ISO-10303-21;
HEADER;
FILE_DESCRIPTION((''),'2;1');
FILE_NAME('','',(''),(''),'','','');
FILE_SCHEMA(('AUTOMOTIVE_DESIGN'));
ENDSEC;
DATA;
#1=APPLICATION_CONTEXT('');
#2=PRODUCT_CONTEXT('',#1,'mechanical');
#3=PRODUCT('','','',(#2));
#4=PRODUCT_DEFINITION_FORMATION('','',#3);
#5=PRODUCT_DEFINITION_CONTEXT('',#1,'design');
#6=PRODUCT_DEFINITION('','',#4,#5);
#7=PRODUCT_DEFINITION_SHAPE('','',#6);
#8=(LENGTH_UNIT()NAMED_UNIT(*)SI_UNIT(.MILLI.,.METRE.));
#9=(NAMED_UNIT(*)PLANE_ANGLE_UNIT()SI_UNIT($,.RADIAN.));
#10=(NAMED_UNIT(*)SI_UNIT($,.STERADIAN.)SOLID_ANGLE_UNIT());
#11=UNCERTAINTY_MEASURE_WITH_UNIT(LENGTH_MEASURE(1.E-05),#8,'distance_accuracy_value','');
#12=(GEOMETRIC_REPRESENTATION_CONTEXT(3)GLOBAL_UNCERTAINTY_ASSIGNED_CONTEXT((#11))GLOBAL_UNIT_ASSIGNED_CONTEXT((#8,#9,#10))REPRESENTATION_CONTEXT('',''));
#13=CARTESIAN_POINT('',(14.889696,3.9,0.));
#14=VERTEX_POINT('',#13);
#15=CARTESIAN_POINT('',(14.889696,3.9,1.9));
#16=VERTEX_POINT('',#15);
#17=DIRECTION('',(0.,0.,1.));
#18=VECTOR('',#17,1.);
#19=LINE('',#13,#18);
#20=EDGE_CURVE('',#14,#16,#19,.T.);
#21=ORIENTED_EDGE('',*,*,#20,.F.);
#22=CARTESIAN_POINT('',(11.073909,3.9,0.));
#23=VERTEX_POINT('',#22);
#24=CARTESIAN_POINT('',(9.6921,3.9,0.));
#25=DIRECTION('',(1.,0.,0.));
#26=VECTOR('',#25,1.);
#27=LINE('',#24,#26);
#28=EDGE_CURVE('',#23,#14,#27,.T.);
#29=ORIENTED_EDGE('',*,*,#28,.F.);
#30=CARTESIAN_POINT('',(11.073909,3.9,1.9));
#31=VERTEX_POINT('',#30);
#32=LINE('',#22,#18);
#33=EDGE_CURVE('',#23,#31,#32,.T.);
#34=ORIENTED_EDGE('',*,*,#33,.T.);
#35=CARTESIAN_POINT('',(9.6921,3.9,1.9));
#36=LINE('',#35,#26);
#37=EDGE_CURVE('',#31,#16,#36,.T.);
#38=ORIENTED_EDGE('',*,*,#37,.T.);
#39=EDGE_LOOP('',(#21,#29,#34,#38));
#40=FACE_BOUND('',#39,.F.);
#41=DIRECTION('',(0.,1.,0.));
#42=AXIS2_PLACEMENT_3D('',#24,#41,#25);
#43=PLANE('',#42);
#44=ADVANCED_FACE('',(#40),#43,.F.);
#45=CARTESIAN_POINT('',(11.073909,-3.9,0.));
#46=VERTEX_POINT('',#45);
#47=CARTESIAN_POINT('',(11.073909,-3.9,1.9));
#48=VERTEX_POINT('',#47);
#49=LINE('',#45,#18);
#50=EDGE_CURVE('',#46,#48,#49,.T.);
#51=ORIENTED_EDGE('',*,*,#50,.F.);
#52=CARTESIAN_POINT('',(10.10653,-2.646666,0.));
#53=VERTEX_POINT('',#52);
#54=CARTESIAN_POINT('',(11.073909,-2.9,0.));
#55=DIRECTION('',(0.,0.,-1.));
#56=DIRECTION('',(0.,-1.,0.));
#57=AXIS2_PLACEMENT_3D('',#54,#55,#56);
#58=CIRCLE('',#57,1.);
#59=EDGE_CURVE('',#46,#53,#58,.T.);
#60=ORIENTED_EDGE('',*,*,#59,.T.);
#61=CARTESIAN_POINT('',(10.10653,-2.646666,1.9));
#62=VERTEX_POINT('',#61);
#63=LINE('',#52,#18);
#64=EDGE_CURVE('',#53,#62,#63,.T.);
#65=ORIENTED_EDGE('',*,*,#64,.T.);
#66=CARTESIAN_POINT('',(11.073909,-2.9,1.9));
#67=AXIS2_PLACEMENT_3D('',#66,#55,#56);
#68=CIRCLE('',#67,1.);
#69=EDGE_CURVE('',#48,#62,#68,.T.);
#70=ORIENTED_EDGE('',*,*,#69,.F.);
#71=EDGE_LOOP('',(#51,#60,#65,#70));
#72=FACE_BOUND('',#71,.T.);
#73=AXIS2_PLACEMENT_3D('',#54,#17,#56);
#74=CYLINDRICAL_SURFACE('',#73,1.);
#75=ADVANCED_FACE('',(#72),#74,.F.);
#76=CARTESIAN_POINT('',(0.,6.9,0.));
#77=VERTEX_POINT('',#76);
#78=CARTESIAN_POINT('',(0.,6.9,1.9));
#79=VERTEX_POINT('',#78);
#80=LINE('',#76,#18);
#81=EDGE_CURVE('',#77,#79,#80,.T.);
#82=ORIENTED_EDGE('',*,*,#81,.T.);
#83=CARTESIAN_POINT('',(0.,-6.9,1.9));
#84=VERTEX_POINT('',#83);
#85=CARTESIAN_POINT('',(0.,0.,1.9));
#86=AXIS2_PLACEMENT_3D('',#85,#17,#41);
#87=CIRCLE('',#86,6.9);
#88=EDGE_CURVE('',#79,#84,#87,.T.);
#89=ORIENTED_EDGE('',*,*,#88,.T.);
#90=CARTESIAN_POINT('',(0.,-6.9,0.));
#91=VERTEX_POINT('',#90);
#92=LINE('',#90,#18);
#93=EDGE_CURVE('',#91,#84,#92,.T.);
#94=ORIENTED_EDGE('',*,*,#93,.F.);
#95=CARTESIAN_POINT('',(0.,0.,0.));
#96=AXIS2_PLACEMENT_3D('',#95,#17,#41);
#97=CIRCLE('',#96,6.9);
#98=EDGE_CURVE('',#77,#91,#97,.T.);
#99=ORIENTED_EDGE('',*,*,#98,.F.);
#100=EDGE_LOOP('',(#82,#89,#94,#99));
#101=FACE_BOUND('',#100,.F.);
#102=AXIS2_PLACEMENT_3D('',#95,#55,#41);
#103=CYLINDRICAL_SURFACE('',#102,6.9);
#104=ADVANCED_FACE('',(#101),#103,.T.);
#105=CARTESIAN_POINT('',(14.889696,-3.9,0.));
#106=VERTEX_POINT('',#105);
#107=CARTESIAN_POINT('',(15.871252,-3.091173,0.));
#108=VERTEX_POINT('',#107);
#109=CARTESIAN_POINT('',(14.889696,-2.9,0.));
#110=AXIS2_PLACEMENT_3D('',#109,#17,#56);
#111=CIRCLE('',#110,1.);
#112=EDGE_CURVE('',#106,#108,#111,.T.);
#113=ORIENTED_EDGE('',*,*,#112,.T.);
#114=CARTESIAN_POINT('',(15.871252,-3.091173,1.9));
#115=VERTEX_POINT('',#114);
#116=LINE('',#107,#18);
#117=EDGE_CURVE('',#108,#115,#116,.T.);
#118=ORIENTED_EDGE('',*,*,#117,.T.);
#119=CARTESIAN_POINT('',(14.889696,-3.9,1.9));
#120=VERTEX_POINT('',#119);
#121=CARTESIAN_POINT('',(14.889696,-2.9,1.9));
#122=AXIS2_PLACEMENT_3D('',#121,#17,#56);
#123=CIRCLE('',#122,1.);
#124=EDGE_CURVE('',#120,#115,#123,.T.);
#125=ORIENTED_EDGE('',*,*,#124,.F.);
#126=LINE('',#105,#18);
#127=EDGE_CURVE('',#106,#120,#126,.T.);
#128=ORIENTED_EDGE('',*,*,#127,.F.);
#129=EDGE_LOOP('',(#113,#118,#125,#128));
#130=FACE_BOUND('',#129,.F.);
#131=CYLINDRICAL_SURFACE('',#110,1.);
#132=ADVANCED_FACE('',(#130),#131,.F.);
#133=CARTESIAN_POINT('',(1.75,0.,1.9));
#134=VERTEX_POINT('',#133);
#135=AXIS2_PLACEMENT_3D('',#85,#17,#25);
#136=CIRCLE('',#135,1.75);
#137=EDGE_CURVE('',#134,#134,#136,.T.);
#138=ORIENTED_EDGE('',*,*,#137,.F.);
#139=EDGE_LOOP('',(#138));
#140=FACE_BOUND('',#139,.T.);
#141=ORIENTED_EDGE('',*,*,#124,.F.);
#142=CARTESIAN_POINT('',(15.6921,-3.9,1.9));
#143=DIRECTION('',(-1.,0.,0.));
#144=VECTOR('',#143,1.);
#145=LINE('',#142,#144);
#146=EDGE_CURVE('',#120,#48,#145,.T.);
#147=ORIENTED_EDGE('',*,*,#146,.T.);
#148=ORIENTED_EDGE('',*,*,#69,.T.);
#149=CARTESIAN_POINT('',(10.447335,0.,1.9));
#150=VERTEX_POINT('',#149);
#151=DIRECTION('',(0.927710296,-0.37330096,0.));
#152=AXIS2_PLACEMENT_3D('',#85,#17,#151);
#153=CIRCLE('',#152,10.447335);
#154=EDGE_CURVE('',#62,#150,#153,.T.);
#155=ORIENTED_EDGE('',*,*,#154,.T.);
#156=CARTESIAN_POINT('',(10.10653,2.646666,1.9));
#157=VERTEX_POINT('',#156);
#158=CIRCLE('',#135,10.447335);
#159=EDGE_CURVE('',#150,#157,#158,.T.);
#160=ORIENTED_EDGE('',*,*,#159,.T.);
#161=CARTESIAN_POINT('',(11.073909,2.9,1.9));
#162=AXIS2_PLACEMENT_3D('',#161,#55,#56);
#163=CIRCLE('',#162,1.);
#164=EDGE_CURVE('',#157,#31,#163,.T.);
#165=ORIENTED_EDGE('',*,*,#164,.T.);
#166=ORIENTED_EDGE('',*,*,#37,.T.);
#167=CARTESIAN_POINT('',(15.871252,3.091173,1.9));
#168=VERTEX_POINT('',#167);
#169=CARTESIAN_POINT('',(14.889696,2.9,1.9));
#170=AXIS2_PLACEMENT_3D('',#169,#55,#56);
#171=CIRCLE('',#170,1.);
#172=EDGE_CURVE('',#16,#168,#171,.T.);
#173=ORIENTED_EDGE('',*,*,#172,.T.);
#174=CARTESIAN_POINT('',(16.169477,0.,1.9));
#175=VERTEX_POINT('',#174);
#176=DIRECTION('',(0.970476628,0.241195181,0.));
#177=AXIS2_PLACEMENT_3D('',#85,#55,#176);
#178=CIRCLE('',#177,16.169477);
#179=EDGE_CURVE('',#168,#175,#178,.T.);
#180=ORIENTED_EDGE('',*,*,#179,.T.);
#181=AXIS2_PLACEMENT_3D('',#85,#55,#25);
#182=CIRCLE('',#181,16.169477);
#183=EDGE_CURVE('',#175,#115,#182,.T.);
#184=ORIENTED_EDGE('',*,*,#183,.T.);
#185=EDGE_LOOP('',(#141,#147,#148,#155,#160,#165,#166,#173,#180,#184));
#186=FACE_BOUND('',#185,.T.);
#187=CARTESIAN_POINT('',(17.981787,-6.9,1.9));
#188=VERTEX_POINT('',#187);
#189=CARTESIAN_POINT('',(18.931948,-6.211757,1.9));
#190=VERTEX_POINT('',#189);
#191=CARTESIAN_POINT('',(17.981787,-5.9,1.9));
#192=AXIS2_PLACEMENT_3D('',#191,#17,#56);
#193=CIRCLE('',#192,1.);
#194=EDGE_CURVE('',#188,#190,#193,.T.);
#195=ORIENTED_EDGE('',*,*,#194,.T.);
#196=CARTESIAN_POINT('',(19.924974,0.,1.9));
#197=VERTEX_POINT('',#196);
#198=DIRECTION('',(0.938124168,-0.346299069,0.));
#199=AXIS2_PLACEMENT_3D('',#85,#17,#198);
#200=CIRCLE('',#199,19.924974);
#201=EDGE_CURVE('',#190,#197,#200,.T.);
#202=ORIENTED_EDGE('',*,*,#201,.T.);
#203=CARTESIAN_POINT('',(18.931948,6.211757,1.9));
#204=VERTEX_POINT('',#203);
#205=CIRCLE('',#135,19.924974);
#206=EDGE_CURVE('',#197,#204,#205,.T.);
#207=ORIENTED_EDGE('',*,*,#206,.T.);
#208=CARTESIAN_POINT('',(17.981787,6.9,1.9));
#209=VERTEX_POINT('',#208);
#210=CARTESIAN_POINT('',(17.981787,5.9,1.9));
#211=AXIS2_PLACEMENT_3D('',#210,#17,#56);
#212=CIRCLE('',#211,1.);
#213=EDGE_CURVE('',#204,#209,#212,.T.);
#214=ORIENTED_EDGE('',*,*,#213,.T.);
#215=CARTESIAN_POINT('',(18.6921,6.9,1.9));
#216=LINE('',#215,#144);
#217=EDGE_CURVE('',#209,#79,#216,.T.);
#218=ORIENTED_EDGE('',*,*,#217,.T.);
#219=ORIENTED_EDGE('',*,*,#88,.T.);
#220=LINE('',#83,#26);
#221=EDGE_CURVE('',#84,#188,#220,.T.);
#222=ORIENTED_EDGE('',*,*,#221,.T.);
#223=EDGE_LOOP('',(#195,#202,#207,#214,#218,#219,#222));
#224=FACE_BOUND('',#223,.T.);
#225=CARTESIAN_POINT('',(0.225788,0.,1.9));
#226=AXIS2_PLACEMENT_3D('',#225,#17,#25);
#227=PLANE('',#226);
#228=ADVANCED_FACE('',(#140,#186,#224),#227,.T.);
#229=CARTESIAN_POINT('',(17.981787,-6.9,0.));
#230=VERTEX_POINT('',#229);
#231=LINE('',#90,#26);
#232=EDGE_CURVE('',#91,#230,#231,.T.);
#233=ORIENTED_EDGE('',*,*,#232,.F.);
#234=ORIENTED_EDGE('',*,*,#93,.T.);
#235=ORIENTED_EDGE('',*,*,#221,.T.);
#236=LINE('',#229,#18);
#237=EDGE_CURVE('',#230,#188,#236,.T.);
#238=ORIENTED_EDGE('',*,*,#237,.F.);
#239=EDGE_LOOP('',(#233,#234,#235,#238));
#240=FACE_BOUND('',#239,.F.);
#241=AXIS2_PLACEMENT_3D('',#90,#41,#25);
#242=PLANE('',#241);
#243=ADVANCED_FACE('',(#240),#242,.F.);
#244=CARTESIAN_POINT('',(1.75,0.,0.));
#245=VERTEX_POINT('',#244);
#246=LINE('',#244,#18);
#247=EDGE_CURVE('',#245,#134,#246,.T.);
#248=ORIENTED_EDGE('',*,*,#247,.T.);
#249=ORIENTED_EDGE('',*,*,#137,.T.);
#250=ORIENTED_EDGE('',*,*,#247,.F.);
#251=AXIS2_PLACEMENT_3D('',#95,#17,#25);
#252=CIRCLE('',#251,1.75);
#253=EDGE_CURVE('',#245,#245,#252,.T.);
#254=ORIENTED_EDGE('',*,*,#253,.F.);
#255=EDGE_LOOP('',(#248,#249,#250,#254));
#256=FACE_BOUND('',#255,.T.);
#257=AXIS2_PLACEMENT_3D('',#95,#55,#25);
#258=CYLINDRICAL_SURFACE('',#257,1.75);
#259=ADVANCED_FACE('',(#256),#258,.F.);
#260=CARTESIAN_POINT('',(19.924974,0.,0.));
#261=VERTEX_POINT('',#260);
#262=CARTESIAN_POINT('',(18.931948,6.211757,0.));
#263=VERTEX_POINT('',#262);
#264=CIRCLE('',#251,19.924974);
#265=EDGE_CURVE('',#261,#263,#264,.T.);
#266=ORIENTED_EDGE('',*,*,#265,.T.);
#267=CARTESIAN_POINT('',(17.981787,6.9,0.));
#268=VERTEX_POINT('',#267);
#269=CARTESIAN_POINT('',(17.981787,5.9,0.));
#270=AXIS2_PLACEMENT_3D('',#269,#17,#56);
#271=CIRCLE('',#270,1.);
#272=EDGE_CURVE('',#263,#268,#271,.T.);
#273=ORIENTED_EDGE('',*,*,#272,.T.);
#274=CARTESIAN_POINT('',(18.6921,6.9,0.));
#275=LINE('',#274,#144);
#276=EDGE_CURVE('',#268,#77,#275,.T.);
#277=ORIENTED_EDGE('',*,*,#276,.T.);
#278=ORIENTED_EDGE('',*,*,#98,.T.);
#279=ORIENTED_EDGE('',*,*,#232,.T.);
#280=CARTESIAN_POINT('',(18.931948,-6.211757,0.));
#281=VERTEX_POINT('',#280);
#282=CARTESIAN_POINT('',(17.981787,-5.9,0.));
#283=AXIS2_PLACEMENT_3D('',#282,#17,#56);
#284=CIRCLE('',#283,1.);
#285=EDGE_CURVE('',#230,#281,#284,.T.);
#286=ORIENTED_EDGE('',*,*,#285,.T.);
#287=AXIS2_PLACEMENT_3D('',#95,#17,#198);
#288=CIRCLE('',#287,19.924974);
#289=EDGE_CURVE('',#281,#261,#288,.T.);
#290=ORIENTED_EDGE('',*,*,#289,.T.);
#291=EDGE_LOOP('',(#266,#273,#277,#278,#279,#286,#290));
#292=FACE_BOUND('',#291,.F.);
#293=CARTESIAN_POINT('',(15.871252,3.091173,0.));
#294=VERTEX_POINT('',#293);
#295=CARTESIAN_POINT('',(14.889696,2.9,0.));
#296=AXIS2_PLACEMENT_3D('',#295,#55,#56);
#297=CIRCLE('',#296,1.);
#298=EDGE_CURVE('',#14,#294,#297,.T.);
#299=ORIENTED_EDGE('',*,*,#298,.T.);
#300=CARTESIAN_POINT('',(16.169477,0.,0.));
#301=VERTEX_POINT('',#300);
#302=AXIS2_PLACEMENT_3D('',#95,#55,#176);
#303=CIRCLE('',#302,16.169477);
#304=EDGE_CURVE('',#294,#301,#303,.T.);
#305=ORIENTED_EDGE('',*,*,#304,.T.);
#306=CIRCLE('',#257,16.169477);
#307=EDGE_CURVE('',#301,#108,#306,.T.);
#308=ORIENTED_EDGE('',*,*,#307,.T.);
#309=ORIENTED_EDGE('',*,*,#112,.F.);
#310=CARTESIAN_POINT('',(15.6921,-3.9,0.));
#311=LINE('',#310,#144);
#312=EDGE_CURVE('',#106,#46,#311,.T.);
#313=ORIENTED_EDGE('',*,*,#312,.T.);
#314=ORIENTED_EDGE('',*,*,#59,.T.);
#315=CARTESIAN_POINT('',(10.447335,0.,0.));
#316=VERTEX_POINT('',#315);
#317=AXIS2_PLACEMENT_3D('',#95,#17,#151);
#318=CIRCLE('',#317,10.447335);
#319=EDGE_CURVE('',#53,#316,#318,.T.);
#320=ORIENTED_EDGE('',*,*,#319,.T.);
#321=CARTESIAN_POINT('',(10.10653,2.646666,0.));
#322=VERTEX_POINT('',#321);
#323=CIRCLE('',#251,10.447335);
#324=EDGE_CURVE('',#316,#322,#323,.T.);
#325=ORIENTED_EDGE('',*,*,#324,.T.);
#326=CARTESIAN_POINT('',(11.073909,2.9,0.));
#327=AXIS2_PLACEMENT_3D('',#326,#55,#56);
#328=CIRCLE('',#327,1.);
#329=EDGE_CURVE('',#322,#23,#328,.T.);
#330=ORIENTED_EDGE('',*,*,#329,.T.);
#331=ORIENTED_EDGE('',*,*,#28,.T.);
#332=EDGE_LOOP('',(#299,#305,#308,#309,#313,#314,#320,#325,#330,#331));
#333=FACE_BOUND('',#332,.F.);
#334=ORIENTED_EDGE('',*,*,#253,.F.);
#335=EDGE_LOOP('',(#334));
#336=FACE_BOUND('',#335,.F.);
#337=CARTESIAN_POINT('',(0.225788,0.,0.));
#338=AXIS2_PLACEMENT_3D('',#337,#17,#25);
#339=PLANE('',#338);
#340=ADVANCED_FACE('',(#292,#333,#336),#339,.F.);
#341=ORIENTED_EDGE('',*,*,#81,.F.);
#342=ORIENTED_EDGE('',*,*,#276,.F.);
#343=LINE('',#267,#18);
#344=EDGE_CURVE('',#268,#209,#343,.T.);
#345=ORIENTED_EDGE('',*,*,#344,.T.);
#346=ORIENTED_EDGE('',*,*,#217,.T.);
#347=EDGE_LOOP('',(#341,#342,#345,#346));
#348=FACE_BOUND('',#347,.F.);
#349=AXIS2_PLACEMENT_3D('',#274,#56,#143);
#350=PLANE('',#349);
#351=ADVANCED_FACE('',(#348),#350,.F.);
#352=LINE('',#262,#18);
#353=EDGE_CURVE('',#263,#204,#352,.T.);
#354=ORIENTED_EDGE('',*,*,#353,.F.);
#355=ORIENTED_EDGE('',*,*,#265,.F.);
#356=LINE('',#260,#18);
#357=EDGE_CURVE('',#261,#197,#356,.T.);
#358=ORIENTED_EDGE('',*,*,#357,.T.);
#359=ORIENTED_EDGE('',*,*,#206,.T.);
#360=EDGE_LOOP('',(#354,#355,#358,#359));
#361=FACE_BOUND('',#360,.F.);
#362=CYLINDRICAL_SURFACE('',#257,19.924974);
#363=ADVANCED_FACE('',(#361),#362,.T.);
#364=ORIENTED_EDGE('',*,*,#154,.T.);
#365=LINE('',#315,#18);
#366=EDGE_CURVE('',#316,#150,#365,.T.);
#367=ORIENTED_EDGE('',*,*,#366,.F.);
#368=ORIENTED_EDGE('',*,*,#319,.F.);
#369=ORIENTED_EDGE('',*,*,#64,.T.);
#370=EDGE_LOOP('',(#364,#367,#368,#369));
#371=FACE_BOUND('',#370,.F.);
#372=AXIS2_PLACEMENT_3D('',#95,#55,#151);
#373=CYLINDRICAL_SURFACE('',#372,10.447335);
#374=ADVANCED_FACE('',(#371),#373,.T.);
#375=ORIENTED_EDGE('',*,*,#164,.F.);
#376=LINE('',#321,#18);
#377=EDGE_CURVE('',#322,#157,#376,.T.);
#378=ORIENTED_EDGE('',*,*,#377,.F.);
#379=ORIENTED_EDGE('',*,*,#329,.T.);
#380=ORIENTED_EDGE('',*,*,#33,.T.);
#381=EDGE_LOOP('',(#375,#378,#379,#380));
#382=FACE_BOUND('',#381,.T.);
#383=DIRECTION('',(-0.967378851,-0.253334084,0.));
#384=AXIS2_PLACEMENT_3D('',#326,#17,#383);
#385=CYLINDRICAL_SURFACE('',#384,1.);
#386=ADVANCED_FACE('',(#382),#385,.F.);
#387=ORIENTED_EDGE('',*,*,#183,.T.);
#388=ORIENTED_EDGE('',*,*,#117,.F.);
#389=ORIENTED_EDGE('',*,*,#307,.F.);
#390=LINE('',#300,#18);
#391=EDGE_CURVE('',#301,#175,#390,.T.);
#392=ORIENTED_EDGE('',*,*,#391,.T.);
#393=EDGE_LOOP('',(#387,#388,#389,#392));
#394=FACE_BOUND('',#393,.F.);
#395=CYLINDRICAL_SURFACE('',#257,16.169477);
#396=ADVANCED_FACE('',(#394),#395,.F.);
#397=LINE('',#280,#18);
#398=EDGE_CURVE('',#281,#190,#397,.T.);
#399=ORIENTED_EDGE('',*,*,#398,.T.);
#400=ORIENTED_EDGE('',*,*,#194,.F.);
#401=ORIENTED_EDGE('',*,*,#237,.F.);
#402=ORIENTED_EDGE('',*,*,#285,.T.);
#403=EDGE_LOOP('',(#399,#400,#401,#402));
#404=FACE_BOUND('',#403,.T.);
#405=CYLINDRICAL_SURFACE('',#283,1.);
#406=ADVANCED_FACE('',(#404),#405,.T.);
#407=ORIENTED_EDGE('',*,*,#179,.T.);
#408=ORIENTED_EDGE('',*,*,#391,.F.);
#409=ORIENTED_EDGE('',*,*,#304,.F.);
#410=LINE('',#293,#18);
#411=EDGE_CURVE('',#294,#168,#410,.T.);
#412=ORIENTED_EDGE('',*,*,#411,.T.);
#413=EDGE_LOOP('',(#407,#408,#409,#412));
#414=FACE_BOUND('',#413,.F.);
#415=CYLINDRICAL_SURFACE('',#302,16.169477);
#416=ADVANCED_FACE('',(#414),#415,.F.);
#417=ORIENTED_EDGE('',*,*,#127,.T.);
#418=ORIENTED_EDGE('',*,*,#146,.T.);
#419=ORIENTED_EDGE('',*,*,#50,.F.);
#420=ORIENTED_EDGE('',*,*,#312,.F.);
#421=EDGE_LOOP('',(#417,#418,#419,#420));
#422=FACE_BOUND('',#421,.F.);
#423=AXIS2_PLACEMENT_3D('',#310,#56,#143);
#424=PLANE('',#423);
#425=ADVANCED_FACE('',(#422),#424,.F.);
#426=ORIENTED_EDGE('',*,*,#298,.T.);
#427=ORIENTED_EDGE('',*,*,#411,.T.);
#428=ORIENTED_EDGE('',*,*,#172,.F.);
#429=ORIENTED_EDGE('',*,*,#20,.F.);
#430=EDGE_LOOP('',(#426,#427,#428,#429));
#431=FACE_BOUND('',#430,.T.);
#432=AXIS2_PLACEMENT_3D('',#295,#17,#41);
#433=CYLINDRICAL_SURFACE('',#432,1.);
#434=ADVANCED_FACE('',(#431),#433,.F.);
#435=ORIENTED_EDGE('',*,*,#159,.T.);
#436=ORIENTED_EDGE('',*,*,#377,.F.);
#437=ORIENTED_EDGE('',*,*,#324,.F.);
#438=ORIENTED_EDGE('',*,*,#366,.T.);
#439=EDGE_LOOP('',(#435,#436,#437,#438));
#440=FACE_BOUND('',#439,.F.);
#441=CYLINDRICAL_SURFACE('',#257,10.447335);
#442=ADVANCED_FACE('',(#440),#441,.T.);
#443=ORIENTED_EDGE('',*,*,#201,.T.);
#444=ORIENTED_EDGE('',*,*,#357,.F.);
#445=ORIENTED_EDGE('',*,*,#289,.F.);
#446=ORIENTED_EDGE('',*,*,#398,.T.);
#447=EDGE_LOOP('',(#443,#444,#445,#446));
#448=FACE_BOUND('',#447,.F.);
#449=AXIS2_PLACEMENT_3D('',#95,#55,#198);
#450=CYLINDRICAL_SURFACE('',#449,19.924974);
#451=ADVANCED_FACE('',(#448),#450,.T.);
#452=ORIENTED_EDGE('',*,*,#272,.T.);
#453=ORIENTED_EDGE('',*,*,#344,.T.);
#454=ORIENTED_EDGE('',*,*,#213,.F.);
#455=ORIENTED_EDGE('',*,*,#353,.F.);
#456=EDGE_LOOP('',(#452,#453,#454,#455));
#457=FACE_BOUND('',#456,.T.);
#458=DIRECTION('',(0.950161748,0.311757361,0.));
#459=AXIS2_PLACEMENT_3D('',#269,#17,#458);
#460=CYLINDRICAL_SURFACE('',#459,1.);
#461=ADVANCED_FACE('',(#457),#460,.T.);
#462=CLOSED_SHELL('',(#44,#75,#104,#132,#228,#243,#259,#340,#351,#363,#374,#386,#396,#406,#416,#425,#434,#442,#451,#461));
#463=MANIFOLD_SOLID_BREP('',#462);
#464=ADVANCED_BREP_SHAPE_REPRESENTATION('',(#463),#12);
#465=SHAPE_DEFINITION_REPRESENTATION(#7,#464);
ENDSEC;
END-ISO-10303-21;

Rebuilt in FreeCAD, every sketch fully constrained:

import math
import FreeCAD as App
import Part
import Sketcher
from FreeCAD import Vector


def edges_at(feature, points):
    """Names of the edges that pass closest to the given points."""
    edges = feature.Shape.Edges
    near = lambda p: min(range(len(edges)), key=lambda i: edges[i].distToShape(Part.Vertex(*p))[0])
    return sorted({f"Edge{near(p) + 1}" for p in points})

doc = App.newDocument("Part")
body = doc.addObject("PartDesign::Body", "Body")

# Sketch on XY plane
sketch1 = body.newObject("Sketcher::SketchObject", "Sketch")
sketch1.AttachmentSupport = (doc.getObject("XY_Plane"), [""])
sketch1.MapMode = "FlatFace"
sketch1.addGeometry([
    Part.ArcOfCircle(Part.Circle(Vector(0, 0, 0), Vector(0, 0, 1), 6.9), math.radians(90), math.radians(270)),  # 0
    Part.LineSegment(Vector(0, -6.9, 0), Vector(18.6921, -6.9, 0)),  # 1
    Part.ArcOfCircle(Part.Circle(Vector(0, 0, 0), Vector(0, 0, 1), 19.924974), math.radians(-20.261116), math.radians(0)),  # 2
    Part.ArcOfCircle(Part.Circle(Vector(0, 0, 0), Vector(0, 0, 1), 19.924974), math.radians(0), math.radians(20.261116)),  # 3
    Part.LineSegment(Vector(18.6921, 6.9, 0), Vector(0, 6.9, 0)),  # 4
    Part.LineSegment(Vector(15.6921, -3.9, 0), Vector(9.6921, -3.9, 0)),  # 5
    Part.ArcOfCircle(Part.Circle(Vector(0, 0, 0), Vector(0, 0, 1), 10.447335), math.radians(-21.919341), math.radians(0)),  # 6
    Part.ArcOfCircle(Part.Circle(Vector(0, 0, 0), Vector(0, 0, 1), 10.447335), math.radians(0), math.radians(21.919341)),  # 7
    Part.LineSegment(Vector(9.6921, 3.9, 0), Vector(15.6921, 3.9, 0)),  # 8
    Part.ArcOfCircle(Part.Circle(Vector(0, 0, 0), Vector(0, 0, 1), 16.169477), math.radians(0), math.radians(13.957092)),  # 9
    Part.ArcOfCircle(Part.Circle(Vector(0, 0, 0), Vector(0, 0, 1), 16.169477), math.radians(-13.957092), math.radians(0)),  # 10
    Part.Circle(Vector(0, 0, 0), Vector(0, 0, 1), 1.75),  # 11
], False)
sketch1.addConstraint([
    Sketcher.Constraint("Tangent", 0, 2, 1, 1),
    Sketcher.Constraint("Coincident", 1, 2, 2, 1),
    Sketcher.Constraint("Tangent", 2, 2, 3, 1),
    Sketcher.Constraint("Coincident", 3, 2, 4, 1),
    Sketcher.Constraint("Tangent", 4, 2, 0, 1),
    Sketcher.Constraint("Coincident", 5, 2, 6, 1),
    Sketcher.Constraint("Tangent", 6, 2, 7, 1),
    Sketcher.Constraint("Coincident", 7, 2, 8, 1),
    Sketcher.Constraint("Coincident", 8, 2, 9, 2),
    Sketcher.Constraint("Tangent", 9, 1, 10, 2),
    Sketcher.Constraint("Coincident", 10, 1, 5, 1),
    Sketcher.Constraint("Horizontal", 1),
    Sketcher.Constraint("Horizontal", 4),
    Sketcher.Constraint("Horizontal", 5),
    Sketcher.Constraint("Horizontal", 8),
    Sketcher.Constraint("Coincident", 0, 3, -1, 1),
    Sketcher.Constraint("Coincident", 2, 3, -1, 1),
    Sketcher.Constraint("Coincident", 6, 3, -1, 1),
    Sketcher.Constraint("Coincident", 9, 3, -1, 1),
    Sketcher.Constraint("Coincident", 11, 3, -1, 1),
    Sketcher.Constraint("Equal", 2, 3),
    Sketcher.Constraint("Equal", 6, 7),
    Sketcher.Constraint("Equal", 9, 10),
    Sketcher.Constraint("PointOnObject", 2, 2, -1),
    Sketcher.Constraint("PointOnObject", 6, 2, -1),
    Sketcher.Constraint("PointOnObject", 9, 1, -1),
    Sketcher.Constraint("Vertical", 5, 2, 7, 2),
    Sketcher.Constraint("Diameter", 11, 3.5),
    Sketcher.Constraint("Radius", 0, 6.9),
    Sketcher.Constraint("DistanceX", 5, 2, 5, 1, 6.0),
    Sketcher.Constraint("DistanceX", 5, 2, 1, 2, 9.0),
    Sketcher.Constraint("DistanceY", 1, 2, 5, 2, 3.0),
    Sketcher.Constraint("DistanceX", 1, 1, 1, 2, 18.6921),
])
pad1 = body.newObject("PartDesign::Pad", "Pad")
pad1.Profile = sketch1
pad1.Length = 1.9
doc.recompute()

fillet = body.newObject("PartDesign::Fillet", "Fillet")
fillet.Base = (pad1, edges_at(pad1, [
    (18.692, -6.9, 0.95),
    (18.692, 6.9, 0.95),
    (9.692, 3.9, 0.95),
    (15.692, 3.9, 0.95),
    (9.692, -3.9, 0.95),
    (15.692, -3.9, 0.95),
]))
fillet.Radius = 1

doc.recompute()
